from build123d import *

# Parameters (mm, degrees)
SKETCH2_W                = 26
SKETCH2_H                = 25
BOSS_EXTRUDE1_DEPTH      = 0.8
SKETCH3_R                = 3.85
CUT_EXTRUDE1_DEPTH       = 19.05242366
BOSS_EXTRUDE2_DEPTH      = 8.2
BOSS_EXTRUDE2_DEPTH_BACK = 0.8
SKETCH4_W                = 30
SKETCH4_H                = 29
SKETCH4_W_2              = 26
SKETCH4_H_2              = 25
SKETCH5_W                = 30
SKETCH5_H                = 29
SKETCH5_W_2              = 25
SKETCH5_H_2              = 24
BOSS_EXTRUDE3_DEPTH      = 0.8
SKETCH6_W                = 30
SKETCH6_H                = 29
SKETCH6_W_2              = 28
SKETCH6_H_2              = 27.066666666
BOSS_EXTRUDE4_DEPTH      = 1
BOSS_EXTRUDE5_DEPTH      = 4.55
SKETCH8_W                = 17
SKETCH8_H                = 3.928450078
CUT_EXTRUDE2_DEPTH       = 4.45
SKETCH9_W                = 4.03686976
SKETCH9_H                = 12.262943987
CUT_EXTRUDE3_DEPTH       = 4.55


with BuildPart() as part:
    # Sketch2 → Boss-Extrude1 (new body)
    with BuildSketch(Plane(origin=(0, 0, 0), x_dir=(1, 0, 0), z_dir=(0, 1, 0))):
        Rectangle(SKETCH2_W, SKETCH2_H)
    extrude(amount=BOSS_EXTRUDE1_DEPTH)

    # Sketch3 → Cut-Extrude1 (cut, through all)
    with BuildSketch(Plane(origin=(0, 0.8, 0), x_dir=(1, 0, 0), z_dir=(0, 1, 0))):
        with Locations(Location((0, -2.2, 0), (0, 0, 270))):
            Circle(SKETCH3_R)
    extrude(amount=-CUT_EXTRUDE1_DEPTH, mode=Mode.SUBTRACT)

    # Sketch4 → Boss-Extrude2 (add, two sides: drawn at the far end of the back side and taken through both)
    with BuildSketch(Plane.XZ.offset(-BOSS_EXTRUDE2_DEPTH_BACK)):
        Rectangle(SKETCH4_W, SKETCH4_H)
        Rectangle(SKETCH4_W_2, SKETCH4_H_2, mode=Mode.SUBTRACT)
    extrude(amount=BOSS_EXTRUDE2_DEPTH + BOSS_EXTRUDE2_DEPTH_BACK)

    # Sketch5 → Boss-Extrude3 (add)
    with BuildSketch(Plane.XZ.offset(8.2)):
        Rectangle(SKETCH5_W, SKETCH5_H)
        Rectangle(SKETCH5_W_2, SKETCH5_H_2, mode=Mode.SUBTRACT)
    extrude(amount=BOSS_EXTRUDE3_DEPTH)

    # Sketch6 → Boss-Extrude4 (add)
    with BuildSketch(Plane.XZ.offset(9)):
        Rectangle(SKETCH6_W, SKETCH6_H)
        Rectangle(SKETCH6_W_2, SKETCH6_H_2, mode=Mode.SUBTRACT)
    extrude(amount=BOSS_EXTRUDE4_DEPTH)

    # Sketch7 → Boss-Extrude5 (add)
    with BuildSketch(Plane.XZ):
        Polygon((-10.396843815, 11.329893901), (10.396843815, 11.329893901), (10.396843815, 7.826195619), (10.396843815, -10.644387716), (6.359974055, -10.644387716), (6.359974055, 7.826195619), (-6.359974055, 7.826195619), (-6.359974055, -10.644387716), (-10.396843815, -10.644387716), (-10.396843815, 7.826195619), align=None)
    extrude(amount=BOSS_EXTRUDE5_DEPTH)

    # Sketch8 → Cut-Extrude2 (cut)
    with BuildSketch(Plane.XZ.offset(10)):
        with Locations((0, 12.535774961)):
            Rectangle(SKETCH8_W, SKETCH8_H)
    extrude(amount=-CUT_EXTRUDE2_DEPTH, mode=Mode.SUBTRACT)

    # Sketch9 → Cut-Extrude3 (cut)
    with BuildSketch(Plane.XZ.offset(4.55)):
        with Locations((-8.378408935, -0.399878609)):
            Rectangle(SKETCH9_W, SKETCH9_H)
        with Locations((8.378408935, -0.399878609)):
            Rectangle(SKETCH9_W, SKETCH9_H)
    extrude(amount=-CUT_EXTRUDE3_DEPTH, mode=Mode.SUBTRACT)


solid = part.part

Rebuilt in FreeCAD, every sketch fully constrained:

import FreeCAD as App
import Part
import Sketcher
from FreeCAD import Vector
Q = App.Units.Quantity


def add_polygon(sketch, points):
    """Adds a closed chain of lines whose ends are joined by coincident constraints."""
    first, n = sketch.GeometryCount, len(points)
    for a, b in zip(points, points[1:] + points[:1]):
        sketch.addGeometry(Part.LineSegment(App.Vector(*a, 0), App.Vector(*b, 0)), False)
    for i in range(n):
        sketch.addConstraint(Sketcher.Constraint("Coincident", first + i, 2, first + (i + 1) % n, 1))

doc = App.newDocument("Part")
body = doc.addObject("PartDesign::Body", "Body")

# Sketch on XZ plane
sketch1 = body.newObject("Sketcher::SketchObject", "Sketch")
sketch1.AttachmentSupport = (doc.getObject("XZ_Plane"), [""])
sketch1.MapMode = "FlatFace"
add_polygon(sketch1, [(-13, -12.5), (-13, 12.5), (13, 12.5), (13, -12.5)])  # lines 0-3
sketch1.addConstraint([
    Sketcher.Constraint("Vertical", 0),
    Sketcher.Constraint("Horizontal", 1),
    Sketcher.Constraint("Vertical", 2),
    Sketcher.Constraint("Horizontal", 3),
    Sketcher.Constraint("Symmetric", 0, 2, 2, 2, -1, 1),
    Sketcher.Constraint("DistanceX", 1, 1, 1, 2, Q("26 mm")),
    Sketcher.Constraint("DistanceY", 0, 1, 0, 2, Q("25 mm")),
])
pad1 = body.newObject("PartDesign::Pad", "Pad")
pad1.Profile = sketch1
pad1.Length = 0.8
pad1.Reversed = True

# Sketch on XZ plane
sketch2 = body.newObject("Sketcher::SketchObject", "Sketch001")
sketch2.AttachmentSupport = (doc.getObject("XZ_Plane"), [""])
sketch2.MapMode = "FlatFace"
sketch2.AttachmentOffset = App.Placement(Vector(0, 0, -0.8), App.Rotation())
sketch2.addGeometry(Part.Circle(Vector(0, 2.2, 0), Vector(0, 0, 1), 3.85), False)
sketch2.addConstraint([
    Sketcher.Constraint("PointOnObject", 0, 3, -2),
    Sketcher.Constraint("Diameter", 0, Q("7.7 mm")),
    Sketcher.Constraint("DistanceY", -1, 1, 0, 3, Q("2.2 mm")),
])
pocket1 = body.newObject("PartDesign::Pocket", "Pocket")
pocket1.Profile = sketch2
pocket1.Type = "ThroughAll"
pocket1.Reversed = True

# Sketch on XZ plane
sketch3 = body.newObject("Sketcher::SketchObject", "Sketch002")
sketch3.AttachmentSupport = (doc.getObject("XZ_Plane"), [""])
sketch3.MapMode = "FlatFace"
add_polygon(sketch3, [(-15, 14.5), (-15, -14.5), (15, -14.5), (15, 14.5)])  # lines 0-3
add_polygon(sketch3, [(13, -12.5), (-13, -12.5), (-13, 12.5), (13, 12.5)])  # lines 4-7
sketch3.addConstraint([
    Sketcher.Constraint("Vertical", 0),
    Sketcher.Constraint("Horizontal", 1),
    Sketcher.Constraint("Vertical", 2),
    Sketcher.Constraint("Horizontal", 3),
    Sketcher.Constraint("Horizontal", 4),
    Sketcher.Constraint("Vertical", 5),
    Sketcher.Constraint("Horizontal", 6),
    Sketcher.Constraint("Vertical", 7),
    Sketcher.Constraint("Symmetric", 0, 2, 2, 2, -1, 1),
    Sketcher.Constraint("Symmetric", 4, 2, 6, 2, -1, 1),
    Sketcher.Constraint("DistanceX", 1, 1, 1, 2, Q("30 mm")),
    Sketcher.Constraint("DistanceX", 4, 2, 4, 1, Q("26 mm")),
    Sketcher.Constraint("DistanceY", 0, 2, 0, 1, Q("29 mm")),
    Sketcher.Constraint("DistanceY", 5, 1, 5, 2, Q("25 mm")),
])
pad2 = body.newObject("PartDesign::Pad", "Pad001")
pad2.Profile = sketch3
pad2.Type = "TwoLengths"
pad2.Length = 8.2
pad2.Length2 = 0.8

# Sketch on XZ plane
sketch4 = body.newObject("Sketcher::SketchObject", "Sketch003")
sketch4.AttachmentSupport = (doc.getObject("XZ_Plane"), [""])
sketch4.MapMode = "FlatFace"
sketch4.AttachmentOffset = App.Placement(Vector(0, 0, 8.2), App.Rotation())
add_polygon(sketch4, [(-15, 14.5), (-15, -14.5), (15, -14.5), (15, 14.5)])  # lines 0-3
add_polygon(sketch4, [(12.5, -12), (-12.5, -12), (-12.5, 12), (12.5, 12)])  # lines 4-7
sketch4.addConstraint([
    Sketcher.Constraint("Vertical", 0),
    Sketcher.Constraint("Horizontal", 1),
    Sketcher.Constraint("Vertical", 2),
    Sketcher.Constraint("Horizontal", 3),
    Sketcher.Constraint("Horizontal", 4),
    Sketcher.Constraint("Vertical", 5),
    Sketcher.Constraint("Horizontal", 6),
    Sketcher.Constraint("Vertical", 7),
    Sketcher.Constraint("Symmetric", 0, 2, 2, 2, -1, 1),
    Sketcher.Constraint("Symmetric", 4, 2, 6, 2, -1, 1),
    Sketcher.Constraint("DistanceX", 1, 1, 1, 2, Q("30 mm")),
    Sketcher.Constraint("DistanceX", 4, 2, 4, 1, Q("25 mm")),
    Sketcher.Constraint("DistanceY", 0, 2, 0, 1, Q("29 mm")),
    Sketcher.Constraint("DistanceY", 5, 1, 5, 2, Q("24 mm")),
])
pad3 = body.newObject("PartDesign::Pad", "Pad002")
pad3.Profile = sketch4
pad3.Length = 0.8

# Sketch on XZ plane
sketch5 = body.newObject("Sketcher::SketchObject", "Sketch004")
sketch5.AttachmentSupport = (doc.getObject("XZ_Plane"), [""])
sketch5.MapMode = "FlatFace"
sketch5.AttachmentOffset = App.Placement(Vector(0, 0, 9), App.Rotation())
add_polygon(sketch5, [(-15, 14.5), (-15, -14.5), (15, -14.5), (15, 14.5)])  # lines 0-3
add_polygon(sketch5, [(14, -13.533333), (-14, -13.533333), (-14, 13.533333), (14, 13.533333)])  # lines 4-7
sketch5.addConstraint([
    Sketcher.Constraint("Vertical", 0),
    Sketcher.Constraint("Horizontal", 1),
    Sketcher.Constraint("Vertical", 2),
    Sketcher.Constraint("Horizontal", 3),
    Sketcher.Constraint("Horizontal", 4),
    Sketcher.Constraint("Vertical", 5),
    Sketcher.Constraint("Horizontal", 6),
    Sketcher.Constraint("Vertical", 7),
    Sketcher.Constraint("Symmetric", 0, 2, 2, 2, -1, 1),
    Sketcher.Constraint("Symmetric", 4, 2, 6, 2, -1, 1),
    Sketcher.Constraint("DistanceX", 1, 1, 1, 2, Q("30 mm")),
    Sketcher.Constraint("DistanceX", 4, 2, 4, 1, Q("28 mm")),
    Sketcher.Constraint("DistanceY", 0, 2, 0, 1, Q("29 mm")),
    Sketcher.Constraint("DistanceY", 5, 1, 5, 2, Q("27.066667 mm")),
])
pad4 = body.newObject("PartDesign::Pad", "Pad003")
pad4.Profile = sketch5
pad4.Length = 1

# Sketch on XZ plane
sketch6 = body.newObject("Sketcher::SketchObject", "Sketch005")
sketch6.AttachmentSupport = (doc.getObject("XZ_Plane"), [""])
sketch6.MapMode = "FlatFace"
add_polygon(sketch6, [(10.396844, 11.329894), (-10.396844, 11.329894), (-10.396844, -10.644388), (-6.359974, -10.644388), (-6.359974, 7.826196), (6.359974, 7.826196), (6.359974, -10.644388), (10.396844, -10.644388)])  # lines 0-7
sketch6.addConstraint([
    Sketcher.Constraint("Horizontal", 0),
    Sketcher.Constraint("Vertical", 1),
    Sketcher.Constraint("Horizontal", 2),
    Sketcher.Constraint("Vertical", 3),
    Sketcher.Constraint("Horizontal", 4),
    Sketcher.Constraint("Vertical", 5),
    Sketcher.Constraint("Horizontal", 6),
    Sketcher.Constraint("Vertical", 7),
    Sketcher.Constraint("Symmetric", 2, 2, 5, 2, -2),
    Sketcher.Constraint("Equal", 2, 6),
    Sketcher.Constraint("DistanceX", 2, 1, 2, 2, Q("4.03687 mm")),
    Sketcher.Constraint("DistanceX", 4, 1, 4, 2, Q("12.719948 mm")),
    Sketcher.Constraint("DistanceY", 1, 2, 1, 1, Q("21.974282 mm")),
    Sketcher.Constraint("DistanceY", 3, 2, 0, 2, Q("3.503698 mm")),
    Sketcher.Constraint("DistanceY", -1, 1, 0, 2, Q("11.329894 mm")),
])
pad5 = body.newObject("PartDesign::Pad", "Pad004")
pad5.Profile = sketch6
pad5.Length = 4.55

# Sketch on XZ plane
sketch7 = body.newObject("Sketcher::SketchObject", "Sketch006")
sketch7.AttachmentSupport = (doc.getObject("XZ_Plane"), [""])
sketch7.MapMode = "FlatFace"
sketch7.AttachmentOffset = App.Placement(Vector(0, 0, 10), App.Rotation())
add_polygon(sketch7, [(-8.5, 14.5), (-8.5, 10.57155), (8.5, 10.57155), (8.5, 14.5)])  # lines 0-3
sketch7.addConstraint([
    Sketcher.Constraint("Vertical", 0),
    Sketcher.Constraint("Horizontal", 1),
    Sketcher.Constraint("Vertical", 2),
    Sketcher.Constraint("Horizontal", 3),
    Sketcher.Constraint("DistanceX", 1, 1, 1, 2, Q("17 mm")),
    Sketcher.Constraint("DistanceX", 0, 2, -1, 1, Q("8.5 mm")),
    Sketcher.Constraint("DistanceY", -1, 1, 2, 2, Q("14.5 mm")),
    Sketcher.Constraint("DistanceY", 0, 2, 0, 1, Q("3.92845 mm")),
])
pocket2 = body.newObject("PartDesign::Pocket", "Pocket001")
pocket2.Profile = sketch7
pocket2.Length = 4.45

# Sketch on XZ plane
sketch8 = body.newObject("Sketcher::SketchObject", "Sketch007")
sketch8.AttachmentSupport = (doc.getObject("XZ_Plane"), [""])
sketch8.MapMode = "FlatFace"
sketch8.AttachmentOffset = App.Placement(Vector(0, 0, 4.55), App.Rotation())
add_polygon(sketch8, [(-10.396844, 5.731593), (-10.396844, -6.531351), (-6.359974, -6.531351), (-6.359974, 5.731593)])  # lines 0-3
add_polygon(sketch8, [(6.359974, 5.731593), (6.359974, -6.531351), (10.396844, -6.531351), (10.396844, 5.731593)])  # lines 4-7
sketch8.addConstraint([
    Sketcher.Constraint("Vertical", 0),
    Sketcher.Constraint("Horizontal", 1),
    Sketcher.Constraint("Vertical", 2),
    Sketcher.Constraint("Horizontal", 3),
    Sketcher.Constraint("Vertical", 4),
    Sketcher.Constraint("Horizontal", 5),
    Sketcher.Constraint("Vertical", 6),
    Sketcher.Constraint("Horizontal", 7),
    Sketcher.Constraint("Symmetric", 1, 2, 4, 2, -2),
    Sketcher.Constraint("Symmetric", 3, 2, 6, 2, -2),
    Sketcher.Constraint("DistanceX", 1, 1, 1, 2, Q("4.03687 mm")),
    Sketcher.Constraint("DistanceY", 0, 2, 0, 1, Q("12.262944 mm")),
    Sketcher.Constraint("DistanceY", 0, 2, -1, 1, Q("6.531351 mm")),
    Sketcher.Constraint("DistanceX", 1, 2, 4, 2, Q("12.719948 mm")),
])
pocket3 = body.newObject("PartDesign::Pocket", "Pocket002")
pocket3.Profile = sketch8
pocket3.Length = 4.55

doc.recompute()
